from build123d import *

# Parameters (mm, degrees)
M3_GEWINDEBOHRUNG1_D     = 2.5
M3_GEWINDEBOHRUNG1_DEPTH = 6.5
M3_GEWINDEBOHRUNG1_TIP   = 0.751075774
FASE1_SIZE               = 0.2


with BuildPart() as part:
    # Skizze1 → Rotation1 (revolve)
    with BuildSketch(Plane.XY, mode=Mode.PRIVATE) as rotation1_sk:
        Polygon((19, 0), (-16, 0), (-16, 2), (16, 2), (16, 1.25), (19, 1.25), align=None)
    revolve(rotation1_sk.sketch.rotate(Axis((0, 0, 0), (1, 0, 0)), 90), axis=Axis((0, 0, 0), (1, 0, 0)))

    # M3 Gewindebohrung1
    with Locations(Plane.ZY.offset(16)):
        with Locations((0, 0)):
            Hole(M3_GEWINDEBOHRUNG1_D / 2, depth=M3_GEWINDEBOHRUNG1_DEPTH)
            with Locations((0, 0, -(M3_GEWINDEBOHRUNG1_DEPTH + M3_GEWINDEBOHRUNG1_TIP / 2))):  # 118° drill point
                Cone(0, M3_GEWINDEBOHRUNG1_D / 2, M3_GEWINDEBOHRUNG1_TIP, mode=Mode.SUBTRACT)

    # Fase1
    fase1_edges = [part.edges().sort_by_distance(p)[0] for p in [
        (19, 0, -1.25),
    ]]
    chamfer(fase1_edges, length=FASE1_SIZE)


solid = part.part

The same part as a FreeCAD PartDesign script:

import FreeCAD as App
import Part
import Sketcher

V = App.Vector
Q = App.Units.Quantity


def edges_at(feature, points):
    """Names of the edges that pass closest to the given points."""
    edges = feature.Shape.Edges
    near = lambda p: min(range(len(edges)), key=lambda i: edges[i].distToShape(Part.Vertex(*p))[0])
    return sorted({f"Edge{near(p) + 1}" for p in points})

doc = App.newDocument("Part")
params = doc.addObject("Spreadsheet::Sheet", "Params")
for row, (alias, value) in enumerate([
    ("sketch1_width", "35 mm"),
    ("sketch1_width2", "3 mm"),
    ("sketch1_height", "2 mm"),
    ("sketch1_height2", "1.25 mm"),
    ("revolution_angle", "360 deg"),
    ("sketch2_diameter", "2.5 mm"),
    ("hole_diameter", "2.5 mm"),
    ("hole_depth", "6.5 mm"),
    ("chamfer_size", "0.2 mm"),
], start=1):
    params.set(f"A{row}", alias)
    params.set(f"B{row}", "=" + value)
    params.setAlias(f"B{row}", alias)

body = doc.addObject("PartDesign::Body", "Body")

# Sketch on XY plane
sketch1 = doc.addObject("Sketcher::SketchObject", "Sketch")
body.addObject(sketch1)
sketch1.AttachmentSupport = (doc.XY_Plane, [""])
sketch1.MapMode = "FlatFace"
sketch1.addGeometry(Part.LineSegment(V(-16, 0, 0), V(19, 0, 0)), False)
sketch1.addGeometry(Part.LineSegment(V(19, 0, 0), V(19, 1.2, 0)), False)
sketch1.addGeometry(Part.LineSegment(V(19, 1.2, 0), V(16, 1.2, 0)), False)
sketch1.addGeometry(Part.LineSegment(V(16, 1.2, 0), V(16, 2, 0)), False)
sketch1.addGeometry(Part.LineSegment(V(16, 2, 0), V(-16, 2, 0)), False)
sketch1.addGeometry(Part.LineSegment(V(-16, 2, 0), V(-16, 0, 0)), False)
sketch1.addConstraint(Sketcher.Constraint("Coincident", 0, 2, 1, 1))
sketch1.addConstraint(Sketcher.Constraint("Coincident", 1, 2, 2, 1))
sketch1.addConstraint(Sketcher.Constraint("Coincident", 2, 2, 3, 1))
sketch1.addConstraint(Sketcher.Constraint("Coincident", 3, 2, 4, 1))
sketch1.addConstraint(Sketcher.Constraint("Coincident", 4, 2, 5, 1))
sketch1.addConstraint(Sketcher.Constraint("Coincident", 5, 2, 0, 1))
sketch1.addConstraint(Sketcher.Constraint("Horizontal", 0))
sketch1.addConstraint(Sketcher.Constraint("Vertical", 1))
sketch1.addConstraint(Sketcher.Constraint("Horizontal", 2))
sketch1.addConstraint(Sketcher.Constraint("Vertical", 3))
sketch1.addConstraint(Sketcher.Constraint("Horizontal", 4))
sketch1.addConstraint(Sketcher.Constraint("Vertical", 5))
sketch1.addConstraint(Sketcher.Constraint("PointOnObject", 0, 2, -1))
sketch1.addConstraint(Sketcher.Constraint("DistanceX", 0, 1, 0, 2, Q("35 mm")))
sketch1.addConstraint(Sketcher.Constraint("DistanceX", 2, 2, 2, 1, Q("3 mm")))
sketch1.addConstraint(Sketcher.Constraint("DistanceY", 5, 2, 5, 1, Q("2 mm")))
sketch1.addConstraint(Sketcher.Constraint("DistanceX", -1, 1, 0, 2, Q("19 mm")))
sketch1.addConstraint(Sketcher.Constraint("DistanceY", 1, 1, 1, 2, Q("1.25 mm")))
sketch1.setExpression("Constraints[13]", "Params.sketch1_width")
sketch1.setExpression("Constraints[14]", "Params.sketch1_width2")
sketch1.setExpression("Constraints[15]", "Params.sketch1_height")
sketch1.setExpression("Constraints[17]", "Params.sketch1_height2")
revolution = doc.addObject("PartDesign::Revolution", "Revolution")
body.addObject(revolution)
revolution.Profile = sketch1
revolution.ReferenceAxis = (sketch1, ["H_Axis"])
revolution.setExpression("Angle", "Params.revolution_angle")

# Sketch on YZ plane
sketch2 = doc.addObject("Sketcher::SketchObject", "Sketch001")
body.addObject(sketch2)
sketch2.AttachmentSupport = (doc.YZ_Plane, [""])
sketch2.MapMode = "FlatFace"
sketch2.AttachmentOffset = App.Placement(V(0, 0, -16), App.Rotation())
sketch2.addGeometry(Part.Circle(V(0, 0, 0), V(0, 0, 1), 1.2), False)
sketch2.addConstraint(Sketcher.Constraint("Coincident", 0, 3, -1, 1))
sketch2.addConstraint(Sketcher.Constraint("Diameter", 0, Q("2.5 mm")))
sketch2.setExpression("Constraints[1]", "Params.sketch2_diameter")
doc.recompute()
hole = doc.addObject("PartDesign::Hole", "Hole")
body.addObject(hole)
hole.Profile = sketch2
hole.ThreadType = "None"
hole.setExpression("Diameter", "Params.hole_diameter")
hole.DepthType = "Dimension"
hole.setExpression("Depth", "Params.hole_depth")
hole.DrillPoint = "Angled"
hole.DrillPointAngle = 118
hole.Reversed = True
doc.recompute()

chamfer = doc.addObject("PartDesign::Chamfer", "Chamfer")
body.addObject(chamfer)
chamfer.Base = (hole, edges_at(hole, [(19, 0, -1.25)]))
chamfer.setExpression("Size", "Params.chamfer_size")

doc.recompute()
